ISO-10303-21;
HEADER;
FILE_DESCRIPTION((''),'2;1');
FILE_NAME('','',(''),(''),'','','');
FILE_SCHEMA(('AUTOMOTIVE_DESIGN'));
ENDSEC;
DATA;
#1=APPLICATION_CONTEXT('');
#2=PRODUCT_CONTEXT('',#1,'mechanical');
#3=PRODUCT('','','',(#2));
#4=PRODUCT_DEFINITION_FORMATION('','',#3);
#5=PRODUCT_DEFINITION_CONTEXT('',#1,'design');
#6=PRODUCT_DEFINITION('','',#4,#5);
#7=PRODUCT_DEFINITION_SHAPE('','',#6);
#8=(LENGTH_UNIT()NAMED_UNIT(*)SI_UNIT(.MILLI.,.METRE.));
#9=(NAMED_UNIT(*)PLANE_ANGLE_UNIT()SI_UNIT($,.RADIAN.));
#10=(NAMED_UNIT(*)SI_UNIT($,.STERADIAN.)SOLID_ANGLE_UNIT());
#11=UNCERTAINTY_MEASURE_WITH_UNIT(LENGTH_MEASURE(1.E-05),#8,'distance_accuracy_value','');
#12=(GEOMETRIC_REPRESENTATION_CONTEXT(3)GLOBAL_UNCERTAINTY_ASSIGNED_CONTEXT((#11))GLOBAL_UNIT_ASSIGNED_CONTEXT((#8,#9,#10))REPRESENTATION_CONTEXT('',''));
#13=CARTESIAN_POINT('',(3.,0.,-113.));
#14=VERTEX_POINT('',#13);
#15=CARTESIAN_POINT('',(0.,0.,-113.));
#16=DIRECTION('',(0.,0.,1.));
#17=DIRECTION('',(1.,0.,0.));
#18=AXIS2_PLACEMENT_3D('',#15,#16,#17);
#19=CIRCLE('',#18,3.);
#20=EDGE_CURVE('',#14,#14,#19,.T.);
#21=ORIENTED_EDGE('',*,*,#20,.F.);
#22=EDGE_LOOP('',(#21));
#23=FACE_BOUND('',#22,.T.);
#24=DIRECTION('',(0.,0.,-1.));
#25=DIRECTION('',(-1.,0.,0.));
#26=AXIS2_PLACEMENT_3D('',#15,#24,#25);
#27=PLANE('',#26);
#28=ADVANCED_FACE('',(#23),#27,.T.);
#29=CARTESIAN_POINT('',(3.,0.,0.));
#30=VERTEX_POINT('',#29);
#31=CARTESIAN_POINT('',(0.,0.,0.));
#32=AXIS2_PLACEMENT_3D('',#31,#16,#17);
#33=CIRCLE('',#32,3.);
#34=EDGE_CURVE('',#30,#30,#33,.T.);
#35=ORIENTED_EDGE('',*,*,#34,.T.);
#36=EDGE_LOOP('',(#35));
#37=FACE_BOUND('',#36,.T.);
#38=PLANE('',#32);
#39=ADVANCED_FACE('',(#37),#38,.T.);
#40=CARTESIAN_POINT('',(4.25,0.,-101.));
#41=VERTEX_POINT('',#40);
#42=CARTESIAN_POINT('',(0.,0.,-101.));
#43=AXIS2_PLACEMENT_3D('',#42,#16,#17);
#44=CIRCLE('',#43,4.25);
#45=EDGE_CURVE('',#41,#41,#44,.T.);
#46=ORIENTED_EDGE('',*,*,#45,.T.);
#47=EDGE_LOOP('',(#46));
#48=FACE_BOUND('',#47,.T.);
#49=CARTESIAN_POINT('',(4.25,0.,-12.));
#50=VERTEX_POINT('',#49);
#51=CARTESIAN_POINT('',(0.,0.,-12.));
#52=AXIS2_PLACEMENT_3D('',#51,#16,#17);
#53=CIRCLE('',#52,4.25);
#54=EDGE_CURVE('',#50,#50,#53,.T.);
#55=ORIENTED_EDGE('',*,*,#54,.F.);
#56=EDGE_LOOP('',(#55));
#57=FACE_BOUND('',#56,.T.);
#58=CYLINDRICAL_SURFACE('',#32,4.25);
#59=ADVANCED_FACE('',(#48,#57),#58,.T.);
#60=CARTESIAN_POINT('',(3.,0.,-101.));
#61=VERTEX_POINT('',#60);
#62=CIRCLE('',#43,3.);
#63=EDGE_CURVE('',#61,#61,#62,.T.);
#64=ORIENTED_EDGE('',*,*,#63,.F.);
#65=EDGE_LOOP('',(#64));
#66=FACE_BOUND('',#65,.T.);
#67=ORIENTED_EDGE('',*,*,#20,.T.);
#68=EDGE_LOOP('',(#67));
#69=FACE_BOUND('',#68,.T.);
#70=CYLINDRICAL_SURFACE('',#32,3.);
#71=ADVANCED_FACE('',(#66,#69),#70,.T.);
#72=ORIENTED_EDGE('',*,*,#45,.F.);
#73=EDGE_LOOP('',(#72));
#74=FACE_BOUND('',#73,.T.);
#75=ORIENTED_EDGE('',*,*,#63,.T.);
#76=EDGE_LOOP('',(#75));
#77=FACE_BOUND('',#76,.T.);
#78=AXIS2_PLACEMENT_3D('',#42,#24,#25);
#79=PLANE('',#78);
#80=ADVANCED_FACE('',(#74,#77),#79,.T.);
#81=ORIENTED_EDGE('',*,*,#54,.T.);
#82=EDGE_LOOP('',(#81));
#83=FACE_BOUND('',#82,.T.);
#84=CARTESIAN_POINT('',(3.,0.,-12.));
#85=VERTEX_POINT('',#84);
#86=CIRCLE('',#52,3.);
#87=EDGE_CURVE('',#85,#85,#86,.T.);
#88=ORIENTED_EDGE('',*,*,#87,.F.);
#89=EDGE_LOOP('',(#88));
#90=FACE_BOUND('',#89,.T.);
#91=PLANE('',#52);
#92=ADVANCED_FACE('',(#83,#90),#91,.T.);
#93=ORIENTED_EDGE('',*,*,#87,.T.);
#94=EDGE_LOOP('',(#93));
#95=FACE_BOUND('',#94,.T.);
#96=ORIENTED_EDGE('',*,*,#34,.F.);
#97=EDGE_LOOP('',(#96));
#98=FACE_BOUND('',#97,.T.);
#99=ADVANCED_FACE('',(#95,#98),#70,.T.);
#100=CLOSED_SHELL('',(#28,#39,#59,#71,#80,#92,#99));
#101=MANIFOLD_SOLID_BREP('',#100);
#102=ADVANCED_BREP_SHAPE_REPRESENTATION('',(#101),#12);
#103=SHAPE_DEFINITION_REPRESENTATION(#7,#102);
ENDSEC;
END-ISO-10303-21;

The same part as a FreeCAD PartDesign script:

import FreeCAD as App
import Part
import Sketcher
Q = App.Units.Quantity

doc = App.newDocument("Part")
body = doc.addObject("PartDesign::Body", "Body")

# Sketch on YZ plane
sketch1 = doc.addObject("Sketcher::SketchObject", "Sketch")
body.addObject(sketch1)
sketch1.AttachmentSupport = (doc.YZ_Plane, [""])
sketch1.MapMode = "FlatFace"
sketch1.addGeometry([
    Part.LineSegment(App.Vector(3, 0, 0), App.Vector(0, 0, 0)),  # 0
    Part.LineSegment(App.Vector(0, 0, 0), App.Vector(0, -113, 0)),  # 1
    Part.LineSegment(App.Vector(0, -113, 0), App.Vector(3, -113, 0)),  # 2
    Part.LineSegment(App.Vector(3, -113, 0), App.Vector(3, -101, 0)),  # 3
    Part.LineSegment(App.Vector(3, -101, 0), App.Vector(4.25, -101, 0)),  # 4
    Part.LineSegment(App.Vector(4.25, -101, 0), App.Vector(4.25, -12, 0)),  # 5
    Part.LineSegment(App.Vector(4.25, -12, 0), App.Vector(3, -12, 0)),  # 6
    Part.LineSegment(App.Vector(3, -12, 0), App.Vector(3, 0, 0)),  # 7
], False)
sketch1.addConstraint([
    Sketcher.Constraint("Coincident", 0, 2, 1, 1),
    Sketcher.Constraint("Coincident", 1, 2, 2, 1),
    Sketcher.Constraint("Coincident", 2, 2, 3, 1),
    Sketcher.Constraint("Coincident", 3, 2, 4, 1),
    Sketcher.Constraint("Coincident", 4, 2, 5, 1),
    Sketcher.Constraint("Coincident", 5, 2, 6, 1),
    Sketcher.Constraint("Coincident", 6, 2, 7, 1),
    Sketcher.Constraint("Coincident", 7, 2, 0, 1),
    Sketcher.Constraint("Horizontal", 0),
    Sketcher.Constraint("Vertical", 1),
    Sketcher.Constraint("Horizontal", 2),
    Sketcher.Constraint("Vertical", 3),
    Sketcher.Constraint("Horizontal", 4),
    Sketcher.Constraint("Vertical", 5),
    Sketcher.Constraint("Horizontal", 6),
    Sketcher.Constraint("Vertical", 7),
    Sketcher.Constraint("Coincident", 0, 2, -1, 1),
    Sketcher.Constraint("Vertical", 3, 2, 6, 2),
    Sketcher.Constraint("Equal", 3, 7),
    Sketcher.Constraint("DistanceX", 0, 2, 0, 1, Q("3 mm")),
    Sketcher.Constraint("DistanceY", 1, 2, 1, 1, Q("113 mm")),
    Sketcher.Constraint("DistanceY", 3, 1, 3, 2, Q("12 mm")),
    Sketcher.Constraint("DistanceX", 4, 1, 4, 2, Q("1.25 mm")),
])
revolution = doc.addObject("PartDesign::Revolution", "Revolution")
body.addObject(revolution)
revolution.Profile = sketch1
revolution.ReferenceAxis = (sketch1, ["V_Axis"])
revolution.Angle = 360

doc.recompute()
